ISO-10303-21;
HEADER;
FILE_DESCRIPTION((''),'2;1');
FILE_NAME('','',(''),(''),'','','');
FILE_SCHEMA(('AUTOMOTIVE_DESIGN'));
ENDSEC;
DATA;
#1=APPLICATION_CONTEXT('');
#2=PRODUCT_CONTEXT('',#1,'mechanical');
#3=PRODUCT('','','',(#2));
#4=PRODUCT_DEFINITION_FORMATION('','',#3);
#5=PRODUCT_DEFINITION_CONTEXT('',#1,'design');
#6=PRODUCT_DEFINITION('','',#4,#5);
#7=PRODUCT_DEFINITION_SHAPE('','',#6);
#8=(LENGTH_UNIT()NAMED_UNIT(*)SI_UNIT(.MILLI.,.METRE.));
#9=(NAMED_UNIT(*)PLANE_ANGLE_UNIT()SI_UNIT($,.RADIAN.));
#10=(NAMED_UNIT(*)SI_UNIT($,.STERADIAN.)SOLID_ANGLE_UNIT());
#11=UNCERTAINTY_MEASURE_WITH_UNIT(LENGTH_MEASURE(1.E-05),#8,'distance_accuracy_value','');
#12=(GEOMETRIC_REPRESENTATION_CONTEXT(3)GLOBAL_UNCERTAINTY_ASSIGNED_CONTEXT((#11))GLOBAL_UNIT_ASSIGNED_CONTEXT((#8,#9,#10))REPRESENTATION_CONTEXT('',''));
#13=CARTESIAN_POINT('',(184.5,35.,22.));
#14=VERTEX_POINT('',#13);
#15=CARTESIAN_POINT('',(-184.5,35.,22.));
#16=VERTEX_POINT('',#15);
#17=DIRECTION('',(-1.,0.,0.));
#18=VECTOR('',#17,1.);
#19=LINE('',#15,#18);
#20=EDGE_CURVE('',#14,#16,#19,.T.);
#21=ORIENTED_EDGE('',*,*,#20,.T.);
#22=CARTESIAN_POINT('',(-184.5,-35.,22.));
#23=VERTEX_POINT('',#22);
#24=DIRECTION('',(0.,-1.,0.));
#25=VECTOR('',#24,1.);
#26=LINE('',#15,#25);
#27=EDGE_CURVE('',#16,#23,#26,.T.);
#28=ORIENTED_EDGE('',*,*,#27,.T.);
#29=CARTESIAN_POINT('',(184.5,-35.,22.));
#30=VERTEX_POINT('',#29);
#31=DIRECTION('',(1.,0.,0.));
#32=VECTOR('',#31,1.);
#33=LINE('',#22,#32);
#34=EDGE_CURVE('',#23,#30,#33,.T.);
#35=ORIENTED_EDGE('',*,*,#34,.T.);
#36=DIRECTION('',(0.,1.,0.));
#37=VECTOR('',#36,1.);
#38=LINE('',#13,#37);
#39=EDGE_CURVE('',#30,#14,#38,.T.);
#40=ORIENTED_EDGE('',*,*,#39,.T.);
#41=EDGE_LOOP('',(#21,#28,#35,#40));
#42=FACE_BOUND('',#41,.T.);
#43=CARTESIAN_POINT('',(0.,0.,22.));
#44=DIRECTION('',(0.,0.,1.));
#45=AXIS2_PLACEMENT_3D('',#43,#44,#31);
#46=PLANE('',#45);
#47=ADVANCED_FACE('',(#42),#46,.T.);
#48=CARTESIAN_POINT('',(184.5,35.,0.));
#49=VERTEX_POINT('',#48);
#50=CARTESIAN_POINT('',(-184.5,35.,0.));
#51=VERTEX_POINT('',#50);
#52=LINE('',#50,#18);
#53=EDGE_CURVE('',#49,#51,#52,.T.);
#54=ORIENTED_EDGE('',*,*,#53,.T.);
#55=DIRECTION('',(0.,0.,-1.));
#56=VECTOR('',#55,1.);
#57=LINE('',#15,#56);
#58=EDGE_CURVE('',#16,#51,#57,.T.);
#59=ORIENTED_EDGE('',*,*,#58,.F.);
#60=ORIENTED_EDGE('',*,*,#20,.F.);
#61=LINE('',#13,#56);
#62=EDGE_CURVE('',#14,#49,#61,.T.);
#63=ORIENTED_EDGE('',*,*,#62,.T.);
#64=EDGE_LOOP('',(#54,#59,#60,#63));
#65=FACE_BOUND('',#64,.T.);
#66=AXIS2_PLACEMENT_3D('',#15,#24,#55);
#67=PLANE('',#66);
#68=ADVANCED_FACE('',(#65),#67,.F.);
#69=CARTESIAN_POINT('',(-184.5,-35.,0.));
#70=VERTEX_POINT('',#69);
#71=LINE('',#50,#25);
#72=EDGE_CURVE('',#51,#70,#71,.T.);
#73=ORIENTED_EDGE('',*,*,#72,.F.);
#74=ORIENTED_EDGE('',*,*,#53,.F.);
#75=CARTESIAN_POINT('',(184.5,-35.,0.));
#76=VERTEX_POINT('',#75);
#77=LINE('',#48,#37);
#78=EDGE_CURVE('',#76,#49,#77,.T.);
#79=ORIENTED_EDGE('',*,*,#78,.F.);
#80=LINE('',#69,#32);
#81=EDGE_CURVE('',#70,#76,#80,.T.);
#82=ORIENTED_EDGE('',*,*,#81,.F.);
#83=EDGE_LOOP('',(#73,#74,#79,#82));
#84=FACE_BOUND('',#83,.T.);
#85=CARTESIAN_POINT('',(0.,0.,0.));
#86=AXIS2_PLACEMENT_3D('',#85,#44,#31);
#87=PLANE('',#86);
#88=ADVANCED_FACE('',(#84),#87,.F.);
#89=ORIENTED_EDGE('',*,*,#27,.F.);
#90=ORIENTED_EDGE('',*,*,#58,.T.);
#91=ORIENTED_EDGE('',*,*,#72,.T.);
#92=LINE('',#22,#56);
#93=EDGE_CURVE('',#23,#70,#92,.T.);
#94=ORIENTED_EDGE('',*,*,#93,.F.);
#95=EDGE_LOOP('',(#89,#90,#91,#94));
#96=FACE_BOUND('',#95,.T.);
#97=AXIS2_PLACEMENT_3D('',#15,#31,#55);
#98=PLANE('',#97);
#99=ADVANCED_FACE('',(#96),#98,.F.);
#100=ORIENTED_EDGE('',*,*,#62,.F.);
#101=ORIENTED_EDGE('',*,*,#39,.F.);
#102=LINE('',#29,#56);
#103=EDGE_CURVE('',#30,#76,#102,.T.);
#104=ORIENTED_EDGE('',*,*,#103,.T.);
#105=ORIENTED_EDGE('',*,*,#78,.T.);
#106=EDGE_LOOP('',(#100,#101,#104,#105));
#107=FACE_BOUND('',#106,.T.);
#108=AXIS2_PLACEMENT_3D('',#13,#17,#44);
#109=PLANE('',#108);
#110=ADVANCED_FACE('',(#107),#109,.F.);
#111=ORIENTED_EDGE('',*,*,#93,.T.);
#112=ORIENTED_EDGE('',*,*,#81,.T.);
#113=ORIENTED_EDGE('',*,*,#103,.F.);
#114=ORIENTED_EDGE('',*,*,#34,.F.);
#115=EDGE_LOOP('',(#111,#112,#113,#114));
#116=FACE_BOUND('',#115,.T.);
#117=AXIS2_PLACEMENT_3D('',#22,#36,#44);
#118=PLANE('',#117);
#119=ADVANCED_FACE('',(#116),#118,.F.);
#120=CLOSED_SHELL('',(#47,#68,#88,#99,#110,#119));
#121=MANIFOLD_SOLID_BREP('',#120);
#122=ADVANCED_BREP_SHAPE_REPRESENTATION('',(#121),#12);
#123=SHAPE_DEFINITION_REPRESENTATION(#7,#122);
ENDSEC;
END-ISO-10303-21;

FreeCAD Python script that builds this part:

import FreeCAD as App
import Part
import Sketcher
from FreeCAD import Vector
Q = App.Units.Quantity

doc = App.newDocument("Part")
params = doc.addObject("Spreadsheet::Sheet", "Params")
for row, (alias, value) in enumerate([
    ("sketch1_width", "369 mm"),
    ("sketch1_height", "70 mm"),
    ("pad1_length", "22 mm"),
], start=1):
    params.set(f"A{row}", alias)
    params.set(f"B{row}", "=" + value)
    params.setAlias(f"B{row}", alias)

body = doc.addObject("PartDesign::Body", "Body")

sketch1 = body.newObject("Sketcher::SketchObject", "Sketch")
sketch1.AttachmentSupport = (doc.getObject("XY_Plane"), [""])
sketch1.MapMode = "FlatFace"
sketch1.addGeometry(Part.LineSegment(Vector(-184, 35, 0), Vector(-184, -35, 0)), False)
sketch1.addGeometry(Part.LineSegment(Vector(-184, -35, 0), Vector(184, -35, 0)), False)
sketch1.addGeometry(Part.LineSegment(Vector(184, -35, 0), Vector(184, 35, 0)), False)
sketch1.addGeometry(Part.LineSegment(Vector(184, 35, 0), Vector(-184, 35, 0)), False)
sketch1.addConstraint(Sketcher.Constraint("Coincident", 0, 2, 1, 1))
sketch1.addConstraint(Sketcher.Constraint("Coincident", 1, 2, 2, 1))
sketch1.addConstraint(Sketcher.Constraint("Coincident", 2, 2, 3, 1))
sketch1.addConstraint(Sketcher.Constraint("Coincident", 3, 2, 0, 1))
sketch1.addConstraint(Sketcher.Constraint("Vertical", 0))
sketch1.addConstraint(Sketcher.Constraint("Horizontal", 1))
sketch1.addConstraint(Sketcher.Constraint("Vertical", 2))
sketch1.addConstraint(Sketcher.Constraint("Horizontal", 3))
sketch1.addConstraint(Sketcher.Constraint("Symmetric", 0, 2, 2, 2, -1, 1))
sketch1.addConstraint(Sketcher.Constraint("DistanceX", 1, 1, 1, 2, Q("369 mm")))
sketch1.addConstraint(Sketcher.Constraint("DistanceY", 0, 2, 0, 1, Q("70 mm")))
sketch1.setExpression("Constraints[9]", "Params.sketch1_width")
sketch1.setExpression("Constraints[10]", "Params.sketch1_height")
pad1 = body.newObject("PartDesign::Pad", "Pad")
pad1.Profile = sketch1
pad1.setExpression("Length", "Params.pad1_length")

doc.recompute()
